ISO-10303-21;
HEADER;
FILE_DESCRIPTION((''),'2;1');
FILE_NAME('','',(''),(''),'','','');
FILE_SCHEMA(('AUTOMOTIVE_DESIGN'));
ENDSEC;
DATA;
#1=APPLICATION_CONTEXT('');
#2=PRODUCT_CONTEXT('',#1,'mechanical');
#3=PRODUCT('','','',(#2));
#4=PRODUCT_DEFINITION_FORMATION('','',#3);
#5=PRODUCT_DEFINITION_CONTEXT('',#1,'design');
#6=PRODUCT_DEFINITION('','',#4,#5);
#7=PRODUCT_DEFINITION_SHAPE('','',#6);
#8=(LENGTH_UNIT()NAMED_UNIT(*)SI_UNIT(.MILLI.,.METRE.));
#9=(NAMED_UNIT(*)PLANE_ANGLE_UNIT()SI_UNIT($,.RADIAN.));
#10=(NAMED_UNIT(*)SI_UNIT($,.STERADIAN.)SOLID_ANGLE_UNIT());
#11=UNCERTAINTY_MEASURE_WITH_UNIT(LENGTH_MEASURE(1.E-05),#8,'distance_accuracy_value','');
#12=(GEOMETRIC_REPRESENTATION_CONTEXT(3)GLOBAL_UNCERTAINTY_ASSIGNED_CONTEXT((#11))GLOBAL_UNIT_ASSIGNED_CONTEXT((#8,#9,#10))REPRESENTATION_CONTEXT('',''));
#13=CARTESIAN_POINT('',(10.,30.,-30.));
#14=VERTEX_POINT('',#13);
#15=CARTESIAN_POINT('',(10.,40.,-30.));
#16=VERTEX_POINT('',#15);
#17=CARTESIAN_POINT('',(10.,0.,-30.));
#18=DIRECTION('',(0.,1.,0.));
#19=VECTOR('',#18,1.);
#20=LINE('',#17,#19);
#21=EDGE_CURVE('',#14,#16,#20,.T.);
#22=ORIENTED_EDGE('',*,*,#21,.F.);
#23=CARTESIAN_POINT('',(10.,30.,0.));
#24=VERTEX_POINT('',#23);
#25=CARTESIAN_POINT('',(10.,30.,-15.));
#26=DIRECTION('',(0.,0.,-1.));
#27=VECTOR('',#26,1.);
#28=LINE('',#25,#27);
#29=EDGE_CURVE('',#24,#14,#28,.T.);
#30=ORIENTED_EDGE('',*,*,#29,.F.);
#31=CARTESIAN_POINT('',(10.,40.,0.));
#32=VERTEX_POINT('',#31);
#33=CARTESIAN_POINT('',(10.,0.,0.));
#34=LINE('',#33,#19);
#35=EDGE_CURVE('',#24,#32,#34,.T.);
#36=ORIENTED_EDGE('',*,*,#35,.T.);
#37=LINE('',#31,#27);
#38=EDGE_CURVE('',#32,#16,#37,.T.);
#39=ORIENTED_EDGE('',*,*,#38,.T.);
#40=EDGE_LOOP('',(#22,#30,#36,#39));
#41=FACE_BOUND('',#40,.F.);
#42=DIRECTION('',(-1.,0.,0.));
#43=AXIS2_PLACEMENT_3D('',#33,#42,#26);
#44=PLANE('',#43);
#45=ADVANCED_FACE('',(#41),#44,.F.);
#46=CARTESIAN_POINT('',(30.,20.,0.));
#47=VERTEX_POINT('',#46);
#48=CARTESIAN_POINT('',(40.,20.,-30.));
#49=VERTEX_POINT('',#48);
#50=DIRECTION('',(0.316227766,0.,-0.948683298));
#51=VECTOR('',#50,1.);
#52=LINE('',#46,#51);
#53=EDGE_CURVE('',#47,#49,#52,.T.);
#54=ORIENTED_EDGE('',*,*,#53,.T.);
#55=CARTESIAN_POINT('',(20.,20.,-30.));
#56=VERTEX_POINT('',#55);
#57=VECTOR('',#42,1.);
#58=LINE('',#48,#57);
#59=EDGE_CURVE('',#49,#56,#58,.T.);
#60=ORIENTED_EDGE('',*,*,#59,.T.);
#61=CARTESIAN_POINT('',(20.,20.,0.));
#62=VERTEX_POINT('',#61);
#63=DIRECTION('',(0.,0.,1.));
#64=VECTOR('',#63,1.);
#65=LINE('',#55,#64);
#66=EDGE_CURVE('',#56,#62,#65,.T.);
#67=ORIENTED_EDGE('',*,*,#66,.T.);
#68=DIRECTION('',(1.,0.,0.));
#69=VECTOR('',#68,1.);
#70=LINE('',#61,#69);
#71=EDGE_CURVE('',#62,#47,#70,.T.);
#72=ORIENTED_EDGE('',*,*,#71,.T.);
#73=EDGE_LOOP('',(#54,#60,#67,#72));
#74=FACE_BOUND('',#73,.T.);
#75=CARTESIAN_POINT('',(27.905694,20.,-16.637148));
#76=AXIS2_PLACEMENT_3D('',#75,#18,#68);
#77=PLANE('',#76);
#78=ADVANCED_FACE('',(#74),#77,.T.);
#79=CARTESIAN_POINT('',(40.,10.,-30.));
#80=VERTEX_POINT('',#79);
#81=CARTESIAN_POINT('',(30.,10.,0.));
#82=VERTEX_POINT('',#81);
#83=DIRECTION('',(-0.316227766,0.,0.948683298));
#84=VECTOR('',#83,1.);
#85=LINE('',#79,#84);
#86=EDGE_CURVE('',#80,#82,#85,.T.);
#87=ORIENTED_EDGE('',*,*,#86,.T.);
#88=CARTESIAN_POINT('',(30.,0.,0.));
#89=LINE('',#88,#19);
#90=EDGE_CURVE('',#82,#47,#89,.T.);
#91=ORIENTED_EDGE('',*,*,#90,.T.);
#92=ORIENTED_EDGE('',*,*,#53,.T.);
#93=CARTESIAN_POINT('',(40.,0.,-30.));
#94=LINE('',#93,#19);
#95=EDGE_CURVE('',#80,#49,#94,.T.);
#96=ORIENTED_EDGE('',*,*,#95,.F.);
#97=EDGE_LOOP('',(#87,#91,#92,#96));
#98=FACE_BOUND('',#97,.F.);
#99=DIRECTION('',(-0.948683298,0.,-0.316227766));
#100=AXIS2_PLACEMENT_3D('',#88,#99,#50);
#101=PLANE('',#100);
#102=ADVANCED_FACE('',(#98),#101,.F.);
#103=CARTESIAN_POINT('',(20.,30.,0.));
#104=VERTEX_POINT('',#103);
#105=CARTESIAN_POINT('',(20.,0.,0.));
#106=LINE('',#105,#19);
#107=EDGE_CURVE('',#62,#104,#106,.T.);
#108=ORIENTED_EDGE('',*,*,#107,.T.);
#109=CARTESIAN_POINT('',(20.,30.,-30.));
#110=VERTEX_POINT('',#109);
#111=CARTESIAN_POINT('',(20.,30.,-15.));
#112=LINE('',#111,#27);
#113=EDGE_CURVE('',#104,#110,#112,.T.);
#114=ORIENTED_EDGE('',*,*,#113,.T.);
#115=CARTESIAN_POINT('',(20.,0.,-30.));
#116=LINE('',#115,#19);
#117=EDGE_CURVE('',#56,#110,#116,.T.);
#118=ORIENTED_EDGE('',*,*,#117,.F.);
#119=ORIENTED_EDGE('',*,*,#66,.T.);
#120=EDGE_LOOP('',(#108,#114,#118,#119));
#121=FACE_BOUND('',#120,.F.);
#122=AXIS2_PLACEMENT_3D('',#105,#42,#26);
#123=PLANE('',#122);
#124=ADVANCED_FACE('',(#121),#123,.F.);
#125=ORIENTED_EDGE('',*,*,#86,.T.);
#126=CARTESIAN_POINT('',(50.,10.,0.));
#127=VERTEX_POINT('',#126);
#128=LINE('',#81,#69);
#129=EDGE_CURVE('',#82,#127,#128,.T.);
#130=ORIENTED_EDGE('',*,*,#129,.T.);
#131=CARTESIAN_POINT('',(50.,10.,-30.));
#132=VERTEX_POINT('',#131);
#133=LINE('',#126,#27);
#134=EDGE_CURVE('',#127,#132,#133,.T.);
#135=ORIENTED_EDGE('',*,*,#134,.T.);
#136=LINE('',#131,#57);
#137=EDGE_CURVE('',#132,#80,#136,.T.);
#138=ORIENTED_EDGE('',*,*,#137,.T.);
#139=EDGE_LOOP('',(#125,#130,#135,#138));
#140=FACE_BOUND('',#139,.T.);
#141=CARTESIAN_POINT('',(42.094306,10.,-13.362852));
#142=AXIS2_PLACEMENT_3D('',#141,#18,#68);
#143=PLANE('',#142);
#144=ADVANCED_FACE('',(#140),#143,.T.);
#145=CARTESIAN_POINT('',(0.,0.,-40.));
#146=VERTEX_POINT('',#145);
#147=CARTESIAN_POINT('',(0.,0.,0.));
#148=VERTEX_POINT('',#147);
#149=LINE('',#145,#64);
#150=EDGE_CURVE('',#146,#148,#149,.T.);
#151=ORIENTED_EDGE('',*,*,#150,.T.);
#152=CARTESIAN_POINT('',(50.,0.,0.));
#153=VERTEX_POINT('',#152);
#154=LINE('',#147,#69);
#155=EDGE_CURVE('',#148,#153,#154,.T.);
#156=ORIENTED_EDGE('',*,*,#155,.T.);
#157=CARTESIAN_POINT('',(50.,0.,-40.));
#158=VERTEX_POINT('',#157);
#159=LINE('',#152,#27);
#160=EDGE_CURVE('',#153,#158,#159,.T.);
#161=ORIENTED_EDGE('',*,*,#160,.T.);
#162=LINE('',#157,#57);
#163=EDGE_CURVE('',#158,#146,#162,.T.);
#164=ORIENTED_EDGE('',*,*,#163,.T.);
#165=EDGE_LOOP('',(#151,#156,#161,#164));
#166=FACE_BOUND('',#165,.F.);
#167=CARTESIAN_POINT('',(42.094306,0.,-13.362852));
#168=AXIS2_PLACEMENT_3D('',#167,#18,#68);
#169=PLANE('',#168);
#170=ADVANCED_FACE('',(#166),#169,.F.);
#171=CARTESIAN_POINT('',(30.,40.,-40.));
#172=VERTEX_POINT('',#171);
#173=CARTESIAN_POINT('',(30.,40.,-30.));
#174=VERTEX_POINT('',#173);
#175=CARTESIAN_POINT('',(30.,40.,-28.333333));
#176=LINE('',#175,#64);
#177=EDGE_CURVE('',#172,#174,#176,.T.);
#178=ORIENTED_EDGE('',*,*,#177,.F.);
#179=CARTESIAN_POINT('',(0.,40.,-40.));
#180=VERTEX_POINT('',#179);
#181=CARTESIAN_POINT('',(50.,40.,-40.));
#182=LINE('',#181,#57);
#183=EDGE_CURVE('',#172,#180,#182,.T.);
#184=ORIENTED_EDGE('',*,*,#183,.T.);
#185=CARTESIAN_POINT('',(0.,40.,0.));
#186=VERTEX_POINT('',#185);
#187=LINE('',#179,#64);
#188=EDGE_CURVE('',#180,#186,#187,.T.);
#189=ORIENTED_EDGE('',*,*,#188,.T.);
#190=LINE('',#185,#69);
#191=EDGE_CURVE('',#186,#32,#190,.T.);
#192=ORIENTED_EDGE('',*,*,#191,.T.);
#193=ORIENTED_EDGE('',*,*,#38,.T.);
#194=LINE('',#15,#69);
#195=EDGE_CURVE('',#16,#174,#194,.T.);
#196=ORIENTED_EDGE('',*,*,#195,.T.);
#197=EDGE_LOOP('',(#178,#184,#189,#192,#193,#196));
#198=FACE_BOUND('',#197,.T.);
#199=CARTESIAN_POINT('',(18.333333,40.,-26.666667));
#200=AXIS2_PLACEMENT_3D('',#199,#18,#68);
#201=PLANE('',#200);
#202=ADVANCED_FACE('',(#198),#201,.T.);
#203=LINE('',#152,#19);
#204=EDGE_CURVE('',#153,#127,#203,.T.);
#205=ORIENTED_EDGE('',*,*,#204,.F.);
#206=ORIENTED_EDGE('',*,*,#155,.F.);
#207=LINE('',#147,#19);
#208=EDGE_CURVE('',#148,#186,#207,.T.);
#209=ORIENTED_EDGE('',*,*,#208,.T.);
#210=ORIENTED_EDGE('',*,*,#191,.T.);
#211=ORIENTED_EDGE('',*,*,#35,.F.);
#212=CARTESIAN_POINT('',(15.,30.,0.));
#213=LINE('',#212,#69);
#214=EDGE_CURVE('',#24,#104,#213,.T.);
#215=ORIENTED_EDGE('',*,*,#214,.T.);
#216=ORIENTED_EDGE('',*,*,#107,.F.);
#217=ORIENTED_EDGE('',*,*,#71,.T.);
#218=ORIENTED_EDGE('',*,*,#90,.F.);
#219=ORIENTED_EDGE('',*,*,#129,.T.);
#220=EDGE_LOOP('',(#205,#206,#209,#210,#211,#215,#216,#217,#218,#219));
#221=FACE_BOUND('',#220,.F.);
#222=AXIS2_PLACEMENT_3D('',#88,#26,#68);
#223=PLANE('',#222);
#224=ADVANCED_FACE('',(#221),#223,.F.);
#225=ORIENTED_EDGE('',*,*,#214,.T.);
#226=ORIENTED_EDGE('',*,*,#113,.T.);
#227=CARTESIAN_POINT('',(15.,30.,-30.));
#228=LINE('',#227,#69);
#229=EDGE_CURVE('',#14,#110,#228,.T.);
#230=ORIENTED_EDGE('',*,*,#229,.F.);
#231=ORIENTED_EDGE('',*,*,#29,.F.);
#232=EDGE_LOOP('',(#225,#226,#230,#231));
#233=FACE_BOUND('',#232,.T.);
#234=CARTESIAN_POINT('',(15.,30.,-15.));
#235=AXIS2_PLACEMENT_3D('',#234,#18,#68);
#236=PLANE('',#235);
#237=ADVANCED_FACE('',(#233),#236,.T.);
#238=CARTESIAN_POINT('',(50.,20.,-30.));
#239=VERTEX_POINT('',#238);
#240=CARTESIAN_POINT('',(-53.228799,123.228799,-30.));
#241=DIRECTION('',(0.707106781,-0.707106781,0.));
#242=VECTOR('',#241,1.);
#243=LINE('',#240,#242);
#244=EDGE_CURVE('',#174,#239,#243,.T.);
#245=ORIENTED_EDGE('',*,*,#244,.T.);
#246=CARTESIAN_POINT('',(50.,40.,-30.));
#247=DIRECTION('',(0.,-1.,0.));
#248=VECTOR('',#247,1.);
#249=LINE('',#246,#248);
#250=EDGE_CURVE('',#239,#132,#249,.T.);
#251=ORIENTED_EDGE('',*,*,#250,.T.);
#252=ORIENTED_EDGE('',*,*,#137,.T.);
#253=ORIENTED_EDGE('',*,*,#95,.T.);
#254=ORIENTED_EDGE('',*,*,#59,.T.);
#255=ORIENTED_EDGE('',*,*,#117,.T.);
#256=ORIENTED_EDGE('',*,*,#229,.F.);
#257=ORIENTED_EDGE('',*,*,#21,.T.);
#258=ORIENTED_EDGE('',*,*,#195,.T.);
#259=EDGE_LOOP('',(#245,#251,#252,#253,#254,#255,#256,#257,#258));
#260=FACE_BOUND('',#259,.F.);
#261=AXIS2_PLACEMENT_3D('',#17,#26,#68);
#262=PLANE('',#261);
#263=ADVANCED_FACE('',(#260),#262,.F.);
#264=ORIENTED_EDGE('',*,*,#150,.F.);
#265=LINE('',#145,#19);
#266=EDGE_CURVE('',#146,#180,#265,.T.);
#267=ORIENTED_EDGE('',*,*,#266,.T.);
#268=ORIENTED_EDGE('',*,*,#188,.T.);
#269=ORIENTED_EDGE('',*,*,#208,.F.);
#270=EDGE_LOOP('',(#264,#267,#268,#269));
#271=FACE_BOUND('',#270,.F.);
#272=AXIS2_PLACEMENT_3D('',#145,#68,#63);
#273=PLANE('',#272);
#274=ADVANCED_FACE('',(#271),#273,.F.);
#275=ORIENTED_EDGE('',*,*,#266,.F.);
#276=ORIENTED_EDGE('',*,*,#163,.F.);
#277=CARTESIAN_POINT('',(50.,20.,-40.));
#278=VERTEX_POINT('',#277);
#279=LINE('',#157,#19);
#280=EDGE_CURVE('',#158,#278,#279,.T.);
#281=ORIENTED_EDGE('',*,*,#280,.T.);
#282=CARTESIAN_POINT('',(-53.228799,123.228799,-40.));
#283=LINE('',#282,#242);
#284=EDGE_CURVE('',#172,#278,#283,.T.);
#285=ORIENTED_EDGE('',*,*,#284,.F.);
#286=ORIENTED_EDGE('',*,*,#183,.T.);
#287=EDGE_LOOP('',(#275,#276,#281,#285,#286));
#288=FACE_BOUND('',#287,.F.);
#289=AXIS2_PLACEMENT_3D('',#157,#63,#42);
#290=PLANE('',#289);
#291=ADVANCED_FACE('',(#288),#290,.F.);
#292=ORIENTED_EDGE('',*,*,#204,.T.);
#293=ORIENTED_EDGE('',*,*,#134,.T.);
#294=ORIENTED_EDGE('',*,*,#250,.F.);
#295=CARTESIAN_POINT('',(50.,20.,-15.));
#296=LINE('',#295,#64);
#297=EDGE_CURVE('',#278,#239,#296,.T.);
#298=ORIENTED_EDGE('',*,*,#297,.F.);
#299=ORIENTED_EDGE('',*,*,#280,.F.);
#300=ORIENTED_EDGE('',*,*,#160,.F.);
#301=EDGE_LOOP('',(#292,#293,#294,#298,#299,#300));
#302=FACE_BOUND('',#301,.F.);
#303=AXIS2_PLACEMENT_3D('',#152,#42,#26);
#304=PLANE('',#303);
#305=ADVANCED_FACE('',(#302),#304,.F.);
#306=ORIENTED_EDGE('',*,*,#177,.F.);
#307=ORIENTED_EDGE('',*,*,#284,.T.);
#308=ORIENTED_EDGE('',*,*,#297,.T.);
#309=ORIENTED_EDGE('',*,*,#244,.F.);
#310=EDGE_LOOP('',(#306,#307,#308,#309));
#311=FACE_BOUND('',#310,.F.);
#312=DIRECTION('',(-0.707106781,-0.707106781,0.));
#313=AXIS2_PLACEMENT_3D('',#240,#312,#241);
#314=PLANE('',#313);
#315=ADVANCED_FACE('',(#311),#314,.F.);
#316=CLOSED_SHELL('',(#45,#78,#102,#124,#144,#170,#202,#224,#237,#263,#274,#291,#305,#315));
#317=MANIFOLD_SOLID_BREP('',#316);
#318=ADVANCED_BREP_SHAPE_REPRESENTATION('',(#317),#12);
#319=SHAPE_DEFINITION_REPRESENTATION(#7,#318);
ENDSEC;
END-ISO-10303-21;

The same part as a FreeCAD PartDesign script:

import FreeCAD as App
import Part
import Sketcher
from FreeCAD import Vector
Q = App.Units.Quantity

doc = App.newDocument("Part")
body = doc.addObject("PartDesign::Body", "Body")

# Sketch on XZ plane
sketch1 = doc.addObject("Sketcher::SketchObject", "Sketch")
body.addObject(sketch1)
sketch1.AttachmentSupport = (doc.XZ_Plane, [""])
sketch1.MapMode = "FlatFace"
sketch1.addGeometry([
    Part.LineSegment(Vector(0, -40, 0), Vector(0, 0, 0)),  # 0
    Part.LineSegment(Vector(0, 0, 0), Vector(10, 0, 0)),  # 1
    Part.LineSegment(Vector(10, 0, 0), Vector(10, -30, 0)),  # 2
    Part.LineSegment(Vector(10, -30, 0), Vector(50, -30, 0)),  # 3
    Part.LineSegment(Vector(50, -30, 0), Vector(50, -40, 0)),  # 4
    Part.LineSegment(Vector(50, -40, 0), Vector(0, -40, 0)),  # 5
], False)
sketch1.addConstraint([
    Sketcher.Constraint("Coincident", 0, 2, 1, 1),
    Sketcher.Constraint("Coincident", 1, 2, 2, 1),
    Sketcher.Constraint("Coincident", 2, 2, 3, 1),
    Sketcher.Constraint("Coincident", 3, 2, 4, 1),
    Sketcher.Constraint("Coincident", 4, 2, 5, 1),
    Sketcher.Constraint("Coincident", 5, 2, 0, 1),
    Sketcher.Constraint("Vertical", 0),
    Sketcher.Constraint("Horizontal", 1),
    Sketcher.Constraint("Vertical", 2),
    Sketcher.Constraint("Horizontal", 3),
    Sketcher.Constraint("Vertical", 4),
    Sketcher.Constraint("Horizontal", 5),
    Sketcher.Constraint("Coincident", 0, 2, -1, 1),
    Sketcher.Constraint("Equal", 3, 0),
    Sketcher.Constraint("Equal", 1, 4),
    Sketcher.Constraint("DistanceX", 1, 1, 1, 2, Q("10 mm")),
    Sketcher.Constraint("DistanceX", 3, 1, 3, 2, Q("40 mm")),
])
pad1 = doc.addObject("PartDesign::Pad", "Pad")
body.addObject(pad1)
pad1.Profile = sketch1
pad1.Length = 40
pad1.Reversed = True

# Sketch on XZ plane
sketch2 = doc.addObject("Sketcher::SketchObject", "Sketch001")
body.addObject(sketch2)
sketch2.AttachmentSupport = (doc.XZ_Plane, [""])
sketch2.MapMode = "FlatFace"
sketch2.addGeometry([
    Part.LineSegment(Vector(10, -30, 0), Vector(10, 0, 0)),
    Part.LineSegment(Vector(10, 0, 0), Vector(20, 0, 0)),
    Part.LineSegment(Vector(20, 0, 0), Vector(20, -30, 0)),
    Part.LineSegment(Vector(20, -30, 0), Vector(10, -30, 0)),
], False)
sketch2.addConstraint([
    Sketcher.Constraint("Coincident", 0, 2, 1, 1),
    Sketcher.Constraint("Coincident", 1, 2, 2, 1),
    Sketcher.Constraint("Coincident", 2, 2, 3, 1),
    Sketcher.Constraint("Coincident", 3, 2, 0, 1),
    Sketcher.Constraint("Vertical", 0),
    Sketcher.Constraint("Horizontal", 1),
    Sketcher.Constraint("Vertical", 2),
    Sketcher.Constraint("Horizontal", 3),
    Sketcher.Constraint("PointOnObject", 0, 2, -1),
    Sketcher.Constraint("DistanceX", 1, 1, 1, 2, Q("10 mm")),
    Sketcher.Constraint("DistanceY", 0, 1, 0, 2, Q("30 mm")),
    Sketcher.Constraint("DistanceX", -1, 1, 0, 2, Q("10 mm")),
])
pad2 = doc.addObject("PartDesign::Pad", "Pad001")
body.addObject(pad2)
pad2.Profile = sketch2
pad2.Length = 30
pad2.Reversed = True

# Sketch on XZ plane
sketch3 = doc.addObject("Sketcher::SketchObject", "Sketch002")
body.addObject(sketch3)
sketch3.AttachmentSupport = (doc.XZ_Plane, [""])
sketch3.MapMode = "FlatFace"
sketch3.addGeometry([
    Part.LineSegment(Vector(20, -30, 0), Vector(20, 0, 0)),
    Part.LineSegment(Vector(20, 0, 0), Vector(30, 0, 0)),
    Part.LineSegment(Vector(30, 0, 0), Vector(40, -30, 0)),
    Part.LineSegment(Vector(40, -30, 0), Vector(20, -30, 0)),
], False)
sketch3.addConstraint([
    Sketcher.Constraint("Coincident", 0, 2, 1, 1),
    Sketcher.Constraint("Coincident", 1, 2, 2, 1),
    Sketcher.Constraint("Coincident", 2, 2, 3, 1),
    Sketcher.Constraint("Coincident", 3, 2, 0, 1),
    Sketcher.Constraint("Vertical", 0),
    Sketcher.Constraint("Horizontal", 1),
    Sketcher.Constraint("Horizontal", 3),
    Sketcher.Constraint("PointOnObject", 0, 2, -1),
    Sketcher.Constraint("DistanceX", 1, 1, 1, 2, Q("10 mm")),
    Sketcher.Constraint("DistanceX", 3, 2, 3, 1, Q("20 mm")),
    Sketcher.Constraint("DistanceY", 0, 1, 0, 2, Q("30 mm")),
    Sketcher.Constraint("DistanceX", -1, 1, 0, 2, Q("20 mm")),
])
pad3 = doc.addObject("PartDesign::Pad", "Pad002")
body.addObject(pad3)
pad3.Profile = sketch3
pad3.Length = 20
pad3.Reversed = True

# Sketch on XZ plane
sketch4 = doc.addObject("Sketcher::SketchObject", "Sketch003")
body.addObject(sketch4)
sketch4.AttachmentSupport = (doc.XZ_Plane, [""])
sketch4.MapMode = "FlatFace"
sketch4.addGeometry([
    Part.LineSegment(Vector(50, 0, 0), Vector(50, -30, 0)),
    Part.LineSegment(Vector(50, -30, 0), Vector(40, -30, 0)),
    Part.LineSegment(Vector(40, -30, 0), Vector(30, 0, 0)),
    Part.LineSegment(Vector(30, 0, 0), Vector(50, 0, 0)),
], False)
sketch4.addConstraint([
    Sketcher.Constraint("Coincident", 0, 2, 1, 1),
    Sketcher.Constraint("Coincident", 1, 2, 2, 1),
    Sketcher.Constraint("Coincident", 2, 2, 3, 1),
    Sketcher.Constraint("Coincident", 3, 2, 0, 1),
    Sketcher.Constraint("Vertical", 0),
    Sketcher.Constraint("Horizontal", 1),
    Sketcher.Constraint("Horizontal", 3),
    Sketcher.Constraint("PointOnObject", 2, 2, -1),
    Sketcher.Constraint("DistanceX", 1, 2, 1, 1, Q("10 mm")),
    Sketcher.Constraint("DistanceX", 3, 1, 3, 2, Q("20 mm")),
    Sketcher.Constraint("DistanceY", 0, 2, 0, 1, Q("30 mm")),
    Sketcher.Constraint("DistanceX", -1, 1, 0, 2, Q("50 mm")),
])
pad4 = doc.addObject("PartDesign::Pad", "Pad003")
body.addObject(pad4)
pad4.Profile = sketch4
pad4.Length = 10
pad4.Reversed = True

# Sketch on XY plane
sketch5 = doc.addObject("Sketcher::SketchObject", "Sketch004")
body.addObject(sketch5)
sketch5.AttachmentSupport = (doc.XY_Plane, [""])
sketch5.MapMode = "FlatFace"
sketch5.AttachmentOffset = App.Placement(Vector(0, 0, -30), App.Rotation())
sketch5.addGeometry([
    Part.LineSegment(Vector(-53, 123, 0), Vector(133, -63, 0)),
    Part.LineSegment(Vector(133, -63, 0), Vector(300, 103, 0)),
    Part.LineSegment(Vector(300, 103, 0), Vector(113, 290, 0)),
    Part.LineSegment(Vector(113, 290, 0), Vector(-53, 123, 0)),
], False)
sketch5.addConstraint([
    Sketcher.Constraint("Coincident", 0, 2, 1, 1),
    Sketcher.Constraint("Coincident", 1, 2, 2, 1),
    Sketcher.Constraint("Coincident", 2, 2, 3, 1),
    Sketcher.Constraint("Coincident", 3, 2, 0, 1),
    Sketcher.Constraint("Perpendicular", 0, 1),
    Sketcher.Constraint("Perpendicular", 1, 2),
    Sketcher.Constraint("Perpendicular", 2, 3),
    Sketcher.Constraint("Angle", 0, Q("-45 deg")),
    Sketcher.Constraint("DistanceX", 2, 2, 0, 2, Q("20 mm")),
    Sketcher.Constraint("DistanceX", -1, 1, 0, 2, Q("133.228799 mm")),
    Sketcher.Constraint("DistanceY", 0, 2, -1, 1, Q("63.228799 mm")),
    Sketcher.Constraint("DistanceY", -1, 1, 1, 2, Q("103.228799 mm")),
])
pocket1 = doc.addObject("PartDesign::Pocket", "Pocket")
body.addObject(pocket1)
pocket1.Profile = sketch5
pocket1.Type = "ThroughAll"
pocket1.Midplane = True

doc.recompute()
